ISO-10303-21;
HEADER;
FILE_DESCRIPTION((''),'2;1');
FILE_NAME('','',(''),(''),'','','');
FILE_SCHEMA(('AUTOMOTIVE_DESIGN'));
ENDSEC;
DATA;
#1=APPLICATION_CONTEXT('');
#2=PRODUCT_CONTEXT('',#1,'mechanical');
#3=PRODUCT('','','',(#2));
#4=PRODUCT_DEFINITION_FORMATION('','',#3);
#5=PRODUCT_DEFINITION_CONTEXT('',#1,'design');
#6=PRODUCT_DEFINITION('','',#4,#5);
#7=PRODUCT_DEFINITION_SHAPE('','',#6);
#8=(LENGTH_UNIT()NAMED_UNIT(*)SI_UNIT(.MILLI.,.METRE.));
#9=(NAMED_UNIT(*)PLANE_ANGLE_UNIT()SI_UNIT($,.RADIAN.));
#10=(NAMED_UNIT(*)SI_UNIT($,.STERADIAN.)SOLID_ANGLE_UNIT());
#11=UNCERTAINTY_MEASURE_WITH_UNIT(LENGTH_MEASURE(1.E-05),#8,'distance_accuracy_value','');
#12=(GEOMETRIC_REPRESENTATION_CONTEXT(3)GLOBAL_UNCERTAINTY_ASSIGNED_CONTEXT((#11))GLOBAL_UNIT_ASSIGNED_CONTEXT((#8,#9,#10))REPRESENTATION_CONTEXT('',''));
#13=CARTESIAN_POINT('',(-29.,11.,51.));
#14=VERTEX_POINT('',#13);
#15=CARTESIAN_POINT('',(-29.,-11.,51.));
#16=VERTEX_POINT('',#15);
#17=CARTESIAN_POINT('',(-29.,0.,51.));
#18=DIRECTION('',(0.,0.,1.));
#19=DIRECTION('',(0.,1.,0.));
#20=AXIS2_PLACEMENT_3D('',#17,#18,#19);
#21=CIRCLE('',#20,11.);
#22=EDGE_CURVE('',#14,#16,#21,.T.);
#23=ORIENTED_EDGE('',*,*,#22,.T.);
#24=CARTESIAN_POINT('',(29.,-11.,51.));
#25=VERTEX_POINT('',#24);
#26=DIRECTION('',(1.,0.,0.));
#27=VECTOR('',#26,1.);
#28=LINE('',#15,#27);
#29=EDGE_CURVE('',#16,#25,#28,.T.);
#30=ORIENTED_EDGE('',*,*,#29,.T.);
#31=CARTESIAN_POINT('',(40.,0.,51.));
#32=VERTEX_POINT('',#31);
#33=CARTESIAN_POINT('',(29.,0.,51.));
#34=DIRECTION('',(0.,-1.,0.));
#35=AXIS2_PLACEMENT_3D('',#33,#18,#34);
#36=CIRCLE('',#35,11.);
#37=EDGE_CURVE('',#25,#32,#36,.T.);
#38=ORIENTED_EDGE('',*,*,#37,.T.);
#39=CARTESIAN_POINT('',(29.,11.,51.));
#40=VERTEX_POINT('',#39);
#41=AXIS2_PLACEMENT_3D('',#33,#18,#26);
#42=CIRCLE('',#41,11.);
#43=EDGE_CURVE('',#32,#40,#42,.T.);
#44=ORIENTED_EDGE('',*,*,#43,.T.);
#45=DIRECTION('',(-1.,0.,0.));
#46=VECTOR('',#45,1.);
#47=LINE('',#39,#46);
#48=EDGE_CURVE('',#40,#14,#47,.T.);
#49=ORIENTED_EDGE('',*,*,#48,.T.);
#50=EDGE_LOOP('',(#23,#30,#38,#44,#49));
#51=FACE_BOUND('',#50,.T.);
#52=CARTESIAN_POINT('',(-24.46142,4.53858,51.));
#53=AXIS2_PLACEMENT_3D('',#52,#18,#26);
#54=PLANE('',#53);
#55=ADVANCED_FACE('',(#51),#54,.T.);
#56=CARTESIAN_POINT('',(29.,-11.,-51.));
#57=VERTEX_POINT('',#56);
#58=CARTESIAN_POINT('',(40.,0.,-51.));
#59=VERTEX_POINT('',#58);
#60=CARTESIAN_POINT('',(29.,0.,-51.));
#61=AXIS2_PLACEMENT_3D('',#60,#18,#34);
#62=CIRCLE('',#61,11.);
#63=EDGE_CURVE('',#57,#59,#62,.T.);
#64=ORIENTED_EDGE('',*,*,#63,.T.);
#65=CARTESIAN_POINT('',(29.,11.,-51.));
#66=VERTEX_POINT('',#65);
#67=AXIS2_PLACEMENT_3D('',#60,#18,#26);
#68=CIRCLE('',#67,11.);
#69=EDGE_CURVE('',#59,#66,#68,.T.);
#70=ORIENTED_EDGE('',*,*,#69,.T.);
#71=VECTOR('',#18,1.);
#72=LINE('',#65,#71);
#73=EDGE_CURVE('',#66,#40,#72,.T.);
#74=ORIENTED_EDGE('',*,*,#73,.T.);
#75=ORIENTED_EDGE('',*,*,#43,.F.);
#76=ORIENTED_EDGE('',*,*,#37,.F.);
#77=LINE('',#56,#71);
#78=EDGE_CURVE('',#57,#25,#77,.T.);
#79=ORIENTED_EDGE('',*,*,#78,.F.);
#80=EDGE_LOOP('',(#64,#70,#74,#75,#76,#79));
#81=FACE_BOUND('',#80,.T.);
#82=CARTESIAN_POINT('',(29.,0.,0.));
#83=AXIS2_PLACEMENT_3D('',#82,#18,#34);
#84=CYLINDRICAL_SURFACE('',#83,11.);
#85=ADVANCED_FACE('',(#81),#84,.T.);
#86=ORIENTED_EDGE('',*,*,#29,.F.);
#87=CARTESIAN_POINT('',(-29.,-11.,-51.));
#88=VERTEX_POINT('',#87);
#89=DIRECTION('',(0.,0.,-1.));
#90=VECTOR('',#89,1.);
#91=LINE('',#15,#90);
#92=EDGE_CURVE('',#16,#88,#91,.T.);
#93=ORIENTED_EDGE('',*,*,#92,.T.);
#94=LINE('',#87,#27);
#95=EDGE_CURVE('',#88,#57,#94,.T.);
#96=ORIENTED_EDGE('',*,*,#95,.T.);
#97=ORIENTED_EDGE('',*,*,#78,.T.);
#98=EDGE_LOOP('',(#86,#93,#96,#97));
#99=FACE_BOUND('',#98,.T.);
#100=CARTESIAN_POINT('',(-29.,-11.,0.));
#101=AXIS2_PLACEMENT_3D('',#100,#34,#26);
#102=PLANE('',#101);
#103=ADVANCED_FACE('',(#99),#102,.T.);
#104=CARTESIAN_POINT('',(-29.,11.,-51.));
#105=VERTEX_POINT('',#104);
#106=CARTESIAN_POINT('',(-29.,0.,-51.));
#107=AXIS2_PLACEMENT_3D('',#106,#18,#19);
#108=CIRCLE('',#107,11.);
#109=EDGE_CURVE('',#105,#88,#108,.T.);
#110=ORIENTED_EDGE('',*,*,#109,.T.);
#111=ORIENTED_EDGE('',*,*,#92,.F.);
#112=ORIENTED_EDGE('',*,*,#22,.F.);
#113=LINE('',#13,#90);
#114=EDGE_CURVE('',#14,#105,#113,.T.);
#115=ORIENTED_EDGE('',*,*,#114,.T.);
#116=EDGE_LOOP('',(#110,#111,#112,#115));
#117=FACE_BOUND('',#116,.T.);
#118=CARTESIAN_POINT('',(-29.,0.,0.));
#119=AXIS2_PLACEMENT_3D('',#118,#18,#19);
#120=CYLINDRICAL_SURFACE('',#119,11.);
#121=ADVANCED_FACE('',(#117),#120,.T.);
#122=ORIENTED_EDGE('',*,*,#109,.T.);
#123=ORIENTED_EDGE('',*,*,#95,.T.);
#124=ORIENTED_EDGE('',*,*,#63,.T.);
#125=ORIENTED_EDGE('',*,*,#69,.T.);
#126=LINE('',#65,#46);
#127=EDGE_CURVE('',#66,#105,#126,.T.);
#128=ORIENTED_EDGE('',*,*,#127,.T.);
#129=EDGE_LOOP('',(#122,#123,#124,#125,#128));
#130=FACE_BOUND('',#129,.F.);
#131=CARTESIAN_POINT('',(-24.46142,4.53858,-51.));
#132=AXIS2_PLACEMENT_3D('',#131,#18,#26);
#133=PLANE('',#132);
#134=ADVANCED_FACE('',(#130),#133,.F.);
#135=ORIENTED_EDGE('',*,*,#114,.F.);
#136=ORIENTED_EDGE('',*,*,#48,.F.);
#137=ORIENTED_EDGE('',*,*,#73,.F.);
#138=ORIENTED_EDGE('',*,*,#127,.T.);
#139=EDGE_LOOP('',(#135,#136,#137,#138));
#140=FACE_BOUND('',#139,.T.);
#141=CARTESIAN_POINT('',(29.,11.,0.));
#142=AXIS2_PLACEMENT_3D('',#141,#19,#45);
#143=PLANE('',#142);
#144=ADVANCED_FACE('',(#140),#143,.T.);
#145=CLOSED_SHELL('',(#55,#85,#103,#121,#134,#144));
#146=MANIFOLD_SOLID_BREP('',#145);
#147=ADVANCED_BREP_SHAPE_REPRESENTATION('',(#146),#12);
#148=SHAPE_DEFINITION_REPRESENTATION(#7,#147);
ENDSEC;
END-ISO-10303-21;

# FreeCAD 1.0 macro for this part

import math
import FreeCAD as App
import Part
import Sketcher

V = App.Vector
Q = App.Units.Quantity

doc = App.newDocument("Part")
body = doc.addObject("PartDesign::Body", "Body")

sketch1 = body.newObject("Sketcher::SketchObject", "Sketch")
sketch1.AttachmentSupport = (doc.getObject("XY_Plane"), [""])
sketch1.MapMode = "FlatFace"
sketch1.addGeometry(Part.LineSegment(V(-29, -11, 0), V(29, -11, 0)), False)
sketch1.addGeometry(Part.ArcOfCircle(Part.Circle(V(29, 0, 0), V(0, 0, 1), 11), math.radians(-90), math.radians(0)), False)
sketch1.addGeometry(Part.ArcOfCircle(Part.Circle(V(29, 0, 0), V(0, 0, 1), 11), math.radians(0), math.radians(90)), False)
sketch1.addGeometry(Part.LineSegment(V(29, 11, 0), V(-29, 11, 0)), False)
sketch1.addGeometry(Part.ArcOfCircle(Part.Circle(V(-29, 0, 0), V(0, 0, 1), 11), math.radians(90), math.radians(270)), False)
sketch1.addConstraint(Sketcher.Constraint("Tangent", 0, 2, 1, 1))
sketch1.addConstraint(Sketcher.Constraint("Tangent", 1, 2, 2, 1))
sketch1.addConstraint(Sketcher.Constraint("Tangent", 2, 2, 3, 1))
sketch1.addConstraint(Sketcher.Constraint("Tangent", 3, 2, 4, 1))
sketch1.addConstraint(Sketcher.Constraint("Tangent", 4, 2, 0, 1))
sketch1.addConstraint(Sketcher.Constraint("Horizontal", 0))
sketch1.addConstraint(Sketcher.Constraint("Horizontal", 3))
sketch1.addConstraint(Sketcher.Constraint("Equal", 1, 2))
sketch1.addConstraint(Sketcher.Constraint("Symmetric", 1, 3, 4, 3, -1, 1))
sketch1.addConstraint(Sketcher.Constraint("PointOnObject", 1, 2, -1))
sketch1.addConstraint(Sketcher.Constraint("Radius", 1, Q("11 mm")))
sketch1.addConstraint(Sketcher.Constraint("DistanceX", 0, 1, 0, 2, Q("58 mm")))
pad1 = body.newObject("PartDesign::Pad", "Pad")
pad1.Profile = sketch1
pad1.Length = 102
pad1.Midplane = True

doc.recompute()
